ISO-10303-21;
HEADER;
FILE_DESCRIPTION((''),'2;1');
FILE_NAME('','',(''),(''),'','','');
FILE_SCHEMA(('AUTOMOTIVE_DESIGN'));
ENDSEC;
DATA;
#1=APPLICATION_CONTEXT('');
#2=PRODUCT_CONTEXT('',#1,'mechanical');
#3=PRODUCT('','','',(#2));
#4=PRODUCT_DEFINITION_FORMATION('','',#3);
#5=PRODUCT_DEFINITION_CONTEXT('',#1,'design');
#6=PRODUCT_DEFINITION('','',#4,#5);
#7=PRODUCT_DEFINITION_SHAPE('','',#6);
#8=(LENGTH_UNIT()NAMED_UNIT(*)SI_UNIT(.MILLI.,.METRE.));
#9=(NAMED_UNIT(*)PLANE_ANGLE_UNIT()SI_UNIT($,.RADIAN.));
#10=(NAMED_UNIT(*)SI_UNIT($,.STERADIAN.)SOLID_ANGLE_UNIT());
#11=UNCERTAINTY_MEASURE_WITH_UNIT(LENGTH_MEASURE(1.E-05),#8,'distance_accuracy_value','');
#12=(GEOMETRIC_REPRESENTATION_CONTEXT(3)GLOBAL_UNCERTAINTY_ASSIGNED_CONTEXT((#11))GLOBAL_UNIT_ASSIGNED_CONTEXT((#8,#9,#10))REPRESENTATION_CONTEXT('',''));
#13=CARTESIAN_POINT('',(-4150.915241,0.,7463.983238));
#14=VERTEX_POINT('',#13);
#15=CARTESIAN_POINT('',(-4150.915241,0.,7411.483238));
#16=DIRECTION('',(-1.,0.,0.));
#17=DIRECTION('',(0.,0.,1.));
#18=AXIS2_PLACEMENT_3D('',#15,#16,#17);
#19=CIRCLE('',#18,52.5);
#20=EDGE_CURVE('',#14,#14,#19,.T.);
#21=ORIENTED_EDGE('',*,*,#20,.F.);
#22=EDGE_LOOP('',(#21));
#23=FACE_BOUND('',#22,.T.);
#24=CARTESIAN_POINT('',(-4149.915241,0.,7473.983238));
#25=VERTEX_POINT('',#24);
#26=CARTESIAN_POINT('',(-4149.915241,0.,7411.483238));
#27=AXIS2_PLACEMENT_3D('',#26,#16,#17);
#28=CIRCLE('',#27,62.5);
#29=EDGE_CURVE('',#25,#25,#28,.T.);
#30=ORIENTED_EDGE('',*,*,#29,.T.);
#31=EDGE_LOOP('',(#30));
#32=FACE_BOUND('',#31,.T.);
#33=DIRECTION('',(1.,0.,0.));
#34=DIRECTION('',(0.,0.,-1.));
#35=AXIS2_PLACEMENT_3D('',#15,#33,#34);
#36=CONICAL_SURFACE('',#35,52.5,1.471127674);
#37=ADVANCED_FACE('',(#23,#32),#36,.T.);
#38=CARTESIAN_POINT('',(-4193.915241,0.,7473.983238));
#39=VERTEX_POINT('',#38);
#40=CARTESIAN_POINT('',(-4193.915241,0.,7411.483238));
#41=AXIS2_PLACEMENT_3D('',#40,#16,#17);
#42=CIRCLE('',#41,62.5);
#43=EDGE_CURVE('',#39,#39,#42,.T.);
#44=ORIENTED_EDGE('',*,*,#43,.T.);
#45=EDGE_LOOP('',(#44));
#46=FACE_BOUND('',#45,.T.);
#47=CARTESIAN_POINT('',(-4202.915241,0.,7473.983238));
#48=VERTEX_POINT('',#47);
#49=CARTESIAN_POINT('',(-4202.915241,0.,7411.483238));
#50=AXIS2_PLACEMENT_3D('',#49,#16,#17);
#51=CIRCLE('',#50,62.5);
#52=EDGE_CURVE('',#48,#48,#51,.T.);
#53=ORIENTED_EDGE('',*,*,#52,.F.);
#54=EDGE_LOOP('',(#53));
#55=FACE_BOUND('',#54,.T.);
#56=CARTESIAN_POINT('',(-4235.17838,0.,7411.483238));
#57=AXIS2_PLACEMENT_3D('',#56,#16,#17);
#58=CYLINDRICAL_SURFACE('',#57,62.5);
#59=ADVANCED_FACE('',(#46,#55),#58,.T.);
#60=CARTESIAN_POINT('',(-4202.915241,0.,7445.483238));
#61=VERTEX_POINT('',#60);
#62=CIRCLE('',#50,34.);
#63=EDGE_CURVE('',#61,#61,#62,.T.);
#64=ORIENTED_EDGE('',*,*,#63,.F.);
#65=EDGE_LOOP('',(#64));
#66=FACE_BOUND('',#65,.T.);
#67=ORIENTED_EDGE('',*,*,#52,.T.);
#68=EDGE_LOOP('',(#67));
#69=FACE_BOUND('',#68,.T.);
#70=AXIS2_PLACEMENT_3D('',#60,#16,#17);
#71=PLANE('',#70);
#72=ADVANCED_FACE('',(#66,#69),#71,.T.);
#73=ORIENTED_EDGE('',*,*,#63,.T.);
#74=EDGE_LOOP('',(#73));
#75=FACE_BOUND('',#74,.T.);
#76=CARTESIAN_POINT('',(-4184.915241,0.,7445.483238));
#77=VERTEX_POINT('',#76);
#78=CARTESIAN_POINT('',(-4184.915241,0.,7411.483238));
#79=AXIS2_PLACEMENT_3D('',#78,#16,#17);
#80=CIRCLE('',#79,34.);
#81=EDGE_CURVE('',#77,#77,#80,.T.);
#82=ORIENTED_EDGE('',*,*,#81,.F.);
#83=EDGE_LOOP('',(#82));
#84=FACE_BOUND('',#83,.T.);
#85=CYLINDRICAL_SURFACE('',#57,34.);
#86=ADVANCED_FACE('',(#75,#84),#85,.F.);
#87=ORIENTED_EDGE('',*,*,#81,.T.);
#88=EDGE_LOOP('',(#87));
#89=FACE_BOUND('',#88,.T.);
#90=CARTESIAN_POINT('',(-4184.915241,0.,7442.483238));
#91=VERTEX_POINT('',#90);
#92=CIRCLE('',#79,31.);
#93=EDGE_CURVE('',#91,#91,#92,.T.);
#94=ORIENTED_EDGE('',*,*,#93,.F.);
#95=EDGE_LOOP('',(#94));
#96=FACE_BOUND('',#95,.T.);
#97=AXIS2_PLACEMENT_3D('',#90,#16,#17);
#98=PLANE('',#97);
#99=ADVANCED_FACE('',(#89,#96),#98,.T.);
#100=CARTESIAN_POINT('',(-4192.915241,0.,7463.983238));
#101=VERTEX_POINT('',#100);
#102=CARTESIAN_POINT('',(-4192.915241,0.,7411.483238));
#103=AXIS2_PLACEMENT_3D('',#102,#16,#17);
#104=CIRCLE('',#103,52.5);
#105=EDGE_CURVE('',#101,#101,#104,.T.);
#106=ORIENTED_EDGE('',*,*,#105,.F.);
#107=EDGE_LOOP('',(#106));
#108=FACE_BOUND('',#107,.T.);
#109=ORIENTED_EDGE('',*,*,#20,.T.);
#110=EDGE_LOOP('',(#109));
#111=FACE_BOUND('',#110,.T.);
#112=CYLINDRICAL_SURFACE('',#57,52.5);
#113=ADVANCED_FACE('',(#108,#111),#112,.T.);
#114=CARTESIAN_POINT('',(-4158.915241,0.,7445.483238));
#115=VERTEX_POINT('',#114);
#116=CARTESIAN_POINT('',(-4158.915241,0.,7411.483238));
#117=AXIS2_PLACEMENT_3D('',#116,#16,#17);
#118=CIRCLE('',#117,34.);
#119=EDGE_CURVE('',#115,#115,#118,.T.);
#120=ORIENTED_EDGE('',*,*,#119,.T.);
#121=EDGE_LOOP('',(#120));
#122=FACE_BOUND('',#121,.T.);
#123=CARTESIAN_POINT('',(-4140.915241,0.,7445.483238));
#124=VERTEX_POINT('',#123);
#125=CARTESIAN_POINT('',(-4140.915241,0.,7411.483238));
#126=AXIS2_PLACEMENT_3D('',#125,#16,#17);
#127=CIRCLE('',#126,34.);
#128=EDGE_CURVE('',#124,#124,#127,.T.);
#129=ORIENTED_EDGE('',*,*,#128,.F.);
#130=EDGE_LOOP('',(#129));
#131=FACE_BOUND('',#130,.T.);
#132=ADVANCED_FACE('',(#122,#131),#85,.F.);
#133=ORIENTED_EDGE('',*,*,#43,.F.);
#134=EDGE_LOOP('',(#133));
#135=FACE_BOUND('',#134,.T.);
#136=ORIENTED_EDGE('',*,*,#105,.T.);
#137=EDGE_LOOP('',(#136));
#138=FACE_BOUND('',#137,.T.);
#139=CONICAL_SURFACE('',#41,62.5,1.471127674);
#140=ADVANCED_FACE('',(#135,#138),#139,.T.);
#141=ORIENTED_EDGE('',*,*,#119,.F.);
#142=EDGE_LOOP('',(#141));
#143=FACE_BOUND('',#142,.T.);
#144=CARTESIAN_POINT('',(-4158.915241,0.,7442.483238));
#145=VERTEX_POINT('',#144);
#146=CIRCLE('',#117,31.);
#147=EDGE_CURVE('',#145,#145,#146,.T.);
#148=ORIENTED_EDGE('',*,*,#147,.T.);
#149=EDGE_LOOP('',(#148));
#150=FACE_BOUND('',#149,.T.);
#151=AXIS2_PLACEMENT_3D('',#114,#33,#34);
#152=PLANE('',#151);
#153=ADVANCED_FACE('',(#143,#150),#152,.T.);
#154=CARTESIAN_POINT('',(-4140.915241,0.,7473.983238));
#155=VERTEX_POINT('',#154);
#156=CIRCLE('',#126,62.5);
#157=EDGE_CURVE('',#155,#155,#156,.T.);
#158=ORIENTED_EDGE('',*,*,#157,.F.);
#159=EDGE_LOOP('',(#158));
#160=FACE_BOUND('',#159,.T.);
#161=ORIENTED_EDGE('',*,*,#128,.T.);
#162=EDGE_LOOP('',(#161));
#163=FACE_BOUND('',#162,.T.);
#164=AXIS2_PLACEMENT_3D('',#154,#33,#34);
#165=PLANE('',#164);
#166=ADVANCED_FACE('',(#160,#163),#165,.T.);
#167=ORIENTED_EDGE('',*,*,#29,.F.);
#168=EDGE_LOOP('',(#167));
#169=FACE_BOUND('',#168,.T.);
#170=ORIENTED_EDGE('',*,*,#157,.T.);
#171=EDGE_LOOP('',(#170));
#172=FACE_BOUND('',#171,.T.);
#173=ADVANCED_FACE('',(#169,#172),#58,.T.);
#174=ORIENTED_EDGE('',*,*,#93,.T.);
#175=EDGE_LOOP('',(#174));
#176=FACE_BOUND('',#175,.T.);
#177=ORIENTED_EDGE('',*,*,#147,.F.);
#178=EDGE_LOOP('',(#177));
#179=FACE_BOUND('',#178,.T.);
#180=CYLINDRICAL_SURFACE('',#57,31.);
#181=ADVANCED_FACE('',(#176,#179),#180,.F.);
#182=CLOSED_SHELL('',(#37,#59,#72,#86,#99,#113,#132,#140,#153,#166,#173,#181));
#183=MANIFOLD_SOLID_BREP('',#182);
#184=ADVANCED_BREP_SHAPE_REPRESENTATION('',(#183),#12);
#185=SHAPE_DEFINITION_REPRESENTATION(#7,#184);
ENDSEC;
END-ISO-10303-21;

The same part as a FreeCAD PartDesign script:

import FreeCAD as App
import Part
import Sketcher

V = App.Vector


def add_polygon(sketch, points):
    """Adds a closed chain of lines whose ends are joined by coincident constraints."""
    first, n = sketch.GeometryCount, len(points)
    for a, b in zip(points, points[1:] + points[:1]):
        sketch.addGeometry(Part.LineSegment(App.Vector(*a, 0), App.Vector(*b, 0)), False)
    for i in range(n):
        sketch.addConstraint(Sketcher.Constraint("Coincident", first + i, 2, first + (i + 1) % n, 1))

doc = App.newDocument("Part")
body = doc.addObject("PartDesign::Body", "Body")

# Sketch on XZ plane
sketch1 = doc.addObject("Sketcher::SketchObject", "Sketch")
body.addObject(sketch1)
sketch1.AttachmentSupport = (doc.XZ_Plane, [""])
sketch1.MapMode = "FlatFace"
add_polygon(sketch1, [(-4202.9, 7474), (-4193.9, 7474), (-4192.9, 7464), (-4150.9, 7464), (-4149.9, 7474), (-4140.9, 7474), (-4140.9, 7445.5), (-4158.9, 7445.5), (-4158.9, 7442.5), (-4184.9, 7442.5), (-4184.9, 7445.5), (-4202.9, 7445.5)])  # lines 0-11
sketch1.addGeometry(Part.LineSegment(V(-4202.9, 7411.5, 0), V(-4140.9, 7411.5, 0)), True)  # axis
sketch1.addConstraint([
    Sketcher.Constraint("Horizontal", 0),
    Sketcher.Constraint("Horizontal", 2),
    Sketcher.Constraint("Horizontal", 4),
    Sketcher.Constraint("Vertical", 5),
    Sketcher.Constraint("Horizontal", 6),
    Sketcher.Constraint("Vertical", 7),
    Sketcher.Constraint("Horizontal", 8),
    Sketcher.Constraint("Vertical", 9),
    Sketcher.Constraint("Horizontal", 10),
    Sketcher.Constraint("Vertical", 11),
    Sketcher.Constraint("Horizontal", 12),
    Sketcher.Constraint("Horizontal", 0, 2, 3, 2),
    Sketcher.Constraint("Horizontal", 6, 2, 9, 2),
    Sketcher.Constraint("Vertical", 11, 2, 12, 1),
    Sketcher.Constraint("Vertical", 5, 2, 12, 2),
    Sketcher.Constraint("Equal", 0, 4),
    Sketcher.Constraint("Equal", 6, 10),
    Sketcher.Constraint("Equal", 1, 3),
    Sketcher.Constraint("DistanceX", 0, 1, 0, 2, 9.0),
    Sketcher.Constraint("DistanceX", 2, 1, 2, 2, 42.0),
    Sketcher.Constraint("DistanceX", 6, 2, 6, 1, 18.0),
    Sketcher.Constraint("DistanceX", 8, 2, 8, 1, 26.0),
    Sketcher.Constraint("DistanceY", 7, 2, 7, 1, 3.0),
    Sketcher.Constraint("DistanceY", 5, 2, 5, 1, 28.5),
    Sketcher.Constraint("DistanceY", 1, 2, 0, 2, 10.0),
    Sketcher.Constraint("DistanceY", 12, 1, 10, 2, 34.0),
    Sketcher.Constraint("DistanceX", 0, 2, -1, 1, 4193.915241),
    Sketcher.Constraint("DistanceY", -1, 1, 0, 2, 7473.983238),
])
revolution = doc.addObject("PartDesign::Revolution", "Revolution")
body.addObject(revolution)
revolution.Profile = sketch1
revolution.ReferenceAxis = (sketch1, ["Axis0"])
revolution.Angle = 360

doc.recompute()
